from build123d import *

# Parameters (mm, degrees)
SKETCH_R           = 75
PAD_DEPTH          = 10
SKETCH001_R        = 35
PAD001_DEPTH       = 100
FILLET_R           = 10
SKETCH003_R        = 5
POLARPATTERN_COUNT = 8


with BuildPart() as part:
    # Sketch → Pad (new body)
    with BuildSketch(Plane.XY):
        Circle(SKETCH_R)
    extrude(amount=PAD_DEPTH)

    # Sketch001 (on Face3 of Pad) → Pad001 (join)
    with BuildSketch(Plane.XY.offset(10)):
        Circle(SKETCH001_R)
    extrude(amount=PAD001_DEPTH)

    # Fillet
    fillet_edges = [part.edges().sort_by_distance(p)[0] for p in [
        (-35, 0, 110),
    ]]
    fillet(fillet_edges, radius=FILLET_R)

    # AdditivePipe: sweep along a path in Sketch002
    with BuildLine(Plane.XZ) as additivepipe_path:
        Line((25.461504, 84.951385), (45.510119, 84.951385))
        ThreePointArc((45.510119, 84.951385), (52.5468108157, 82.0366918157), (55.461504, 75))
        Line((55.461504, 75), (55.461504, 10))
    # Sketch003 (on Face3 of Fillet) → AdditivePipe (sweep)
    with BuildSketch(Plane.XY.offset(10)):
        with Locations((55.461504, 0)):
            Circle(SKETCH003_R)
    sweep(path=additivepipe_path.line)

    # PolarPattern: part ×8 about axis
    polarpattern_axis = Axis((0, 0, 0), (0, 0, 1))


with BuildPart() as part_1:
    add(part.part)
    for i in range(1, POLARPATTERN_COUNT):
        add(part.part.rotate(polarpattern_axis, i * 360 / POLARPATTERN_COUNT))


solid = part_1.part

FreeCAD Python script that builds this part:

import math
import FreeCAD as App
import Part
import Sketcher

V = App.Vector


def edges_at(feature, points):
    """Names of the edges that pass closest to the given points."""
    edges = feature.Shape.Edges
    near = lambda p: min(range(len(edges)), key=lambda i: edges[i].distToShape(Part.Vertex(*p))[0])
    return sorted({f"Edge{near(p) + 1}" for p in points})

doc = App.newDocument("Part")
body = doc.addObject("PartDesign::Body", "Body")

# Sketch on XY plane
sketch1 = body.newObject("Sketcher::SketchObject", "Sketch")
sketch1.AttachmentSupport = (doc.getObject("XY_Plane"), [""])
sketch1.MapMode = "FlatFace"
sketch1.addGeometry(Part.Circle(V(0, 0, 0), V(0, 0, 1), 75), False)
sketch1.addConstraint(Sketcher.Constraint("Coincident", 0, 3, -1, 1))
sketch1.addConstraint(Sketcher.Constraint("Diameter", 0, 150.0))
pad1 = body.newObject("PartDesign::Pad", "Pad")
pad1.Profile = sketch1
pad1.Length = 10

# Sketch on XY plane
sketch2 = body.newObject("Sketcher::SketchObject", "Sketch001")
sketch2.AttachmentSupport = (doc.getObject("XY_Plane"), [""])
sketch2.MapMode = "FlatFace"
sketch2.AttachmentOffset = App.Placement(V(0, 0, 10), App.Rotation())
sketch2.addGeometry(Part.Circle(V(0, 0, 0), V(0, 0, 1), 35), False)
sketch2.addConstraint(Sketcher.Constraint("Coincident", 0, 3, -1, 1))
sketch2.addConstraint(Sketcher.Constraint("Diameter", 0, 70.0))
pad2 = body.newObject("PartDesign::Pad", "Pad001")
pad2.Profile = sketch2
pad2.Length = 100
doc.recompute()

fillet = body.newObject("PartDesign::Fillet", "Fillet")
fillet.Base = (pad2, edges_at(pad2, [(-35, 0, 110)]))
fillet.Radius = 10

# Sketch on XY plane
sketch3 = body.newObject("Sketcher::SketchObject", "Sketch002")
sketch3.AttachmentSupport = (doc.getObject("XY_Plane"), [""])
sketch3.MapMode = "FlatFace"
sketch3.AttachmentOffset = App.Placement(V(0, 0, 10), App.Rotation())
sketch3.addGeometry(Part.Circle(V(55, 0, 0), V(0, 0, 1), 5), False)
sketch3.addConstraint(Sketcher.Constraint("PointOnObject", 0, 3, -1))
sketch3.addConstraint(Sketcher.Constraint("Diameter", 0, 10.0))
sketch3.addConstraint(Sketcher.Constraint("DistanceX", -1, 1, 0, 3, 55.461504))

# Sketch on XZ plane
sketch4 = body.newObject("Sketcher::SketchObject", "Sketch003")
sketch4.AttachmentSupport = (doc.getObject("XZ_Plane"), [""])
sketch4.MapMode = "FlatFace"
sketch4.addGeometry(Part.LineSegment(V(25, 85, 0), V(46, 85, 0)), False)
sketch4.addGeometry(Part.ArcOfCircle(Part.Circle(V(46, 75, 0), V(0, 0, 1), 10), math.radians(0), math.radians(90)), False)
sketch4.addGeometry(Part.LineSegment(V(55, 75, 0), V(55, 10, 0)), False)
sketch4.addConstraint(Sketcher.Constraint("Tangent", 0, 2, 1, 2))
sketch4.addConstraint(Sketcher.Constraint("Tangent", 1, 1, 2, 1))
sketch4.addConstraint(Sketcher.Constraint("Horizontal", 0))
sketch4.addConstraint(Sketcher.Constraint("Vertical", 2))
sketch4.addConstraint(Sketcher.Constraint("DistanceY", 2, 2, 2, 1, 65.0))
sketch4.addConstraint(Sketcher.Constraint("DistanceY", -1, 1, 1, 3, 75.0))
sketch4.addConstraint(Sketcher.Constraint("DistanceX", 0, 1, 1, 1, 30.0))
sketch4.addConstraint(Sketcher.Constraint("Radius", 1, 9.951385))
sketch4.addConstraint(Sketcher.Constraint("DistanceX", -1, 1, 1, 3, 45.510119))
doc.recompute()

additivepipe = body.newObject("PartDesign::AdditivePipe", "AdditivePipe")
additivepipe.Profile = sketch3
additivepipe.Spine = (sketch4, ["Edge1", "Edge2", "Edge3"])
body2 = doc.addObject("PartDesign::Body", "Body001")
doc.recompute()

body2.BaseFeature = body
doc.recompute()

body3 = doc.addObject("PartDesign::Body", "Body002")
body3.BaseFeature = body
body3.Placement = App.Placement(V(0, 0, 0), App.Rotation(V(0, 0, 1), 45))
boolean = body2.newObject("PartDesign::Boolean", "Boolean")
boolean.Type = "Fuse"
boolean.addObjects([body3])
doc.recompute()

body4 = doc.addObject("PartDesign::Body", "Body003")
body4.BaseFeature = body
body4.Placement = App.Placement(V(0, 0, 0), App.Rotation(V(0, 0, 1), 90))
boolean2 = body2.newObject("PartDesign::Boolean", "Boolean001")
boolean2.Type = "Fuse"
boolean2.addObjects([body4])
doc.recompute()

body5 = doc.addObject("PartDesign::Body", "Body004")
body5.BaseFeature = body
body5.Placement = App.Placement(V(0, 0, 0), App.Rotation(V(0, 0, 1), 135))
boolean3 = body2.newObject("PartDesign::Boolean", "Boolean002")
boolean3.Type = "Fuse"
boolean3.addObjects([body5])
doc.recompute()

body6 = doc.addObject("PartDesign::Body", "Body005")
body6.BaseFeature = body
body6.Placement = App.Placement(V(0, 0, 0), App.Rotation(V(0, 0, 1), 180))
boolean4 = body2.newObject("PartDesign::Boolean", "Boolean003")
boolean4.Type = "Fuse"
boolean4.addObjects([body6])
doc.recompute()

body7 = doc.addObject("PartDesign::Body", "Body006")
body7.BaseFeature = body
body7.Placement = App.Placement(V(0, 0, 0), App.Rotation(V(0, 0, 1), 225))
boolean5 = body2.newObject("PartDesign::Boolean", "Boolean004")
boolean5.Type = "Fuse"
boolean5.addObjects([body7])
doc.recompute()

body8 = doc.addObject("PartDesign::Body", "Body007")
body8.BaseFeature = body
body8.Placement = App.Placement(V(0, 0, 0), App.Rotation(V(0, 0, 1), 270))
boolean6 = body2.newObject("PartDesign::Boolean", "Boolean005")
boolean6.Type = "Fuse"
boolean6.addObjects([body8])
doc.recompute()

body.Placement = App.Placement(V(0, 0, 0), App.Rotation(V(0, 0, 1), 315))
boolean7 = body2.newObject("PartDesign::Boolean", "Boolean006")
boolean7.Type = "Fuse"
boolean7.addObjects([body])

doc.recompute()
